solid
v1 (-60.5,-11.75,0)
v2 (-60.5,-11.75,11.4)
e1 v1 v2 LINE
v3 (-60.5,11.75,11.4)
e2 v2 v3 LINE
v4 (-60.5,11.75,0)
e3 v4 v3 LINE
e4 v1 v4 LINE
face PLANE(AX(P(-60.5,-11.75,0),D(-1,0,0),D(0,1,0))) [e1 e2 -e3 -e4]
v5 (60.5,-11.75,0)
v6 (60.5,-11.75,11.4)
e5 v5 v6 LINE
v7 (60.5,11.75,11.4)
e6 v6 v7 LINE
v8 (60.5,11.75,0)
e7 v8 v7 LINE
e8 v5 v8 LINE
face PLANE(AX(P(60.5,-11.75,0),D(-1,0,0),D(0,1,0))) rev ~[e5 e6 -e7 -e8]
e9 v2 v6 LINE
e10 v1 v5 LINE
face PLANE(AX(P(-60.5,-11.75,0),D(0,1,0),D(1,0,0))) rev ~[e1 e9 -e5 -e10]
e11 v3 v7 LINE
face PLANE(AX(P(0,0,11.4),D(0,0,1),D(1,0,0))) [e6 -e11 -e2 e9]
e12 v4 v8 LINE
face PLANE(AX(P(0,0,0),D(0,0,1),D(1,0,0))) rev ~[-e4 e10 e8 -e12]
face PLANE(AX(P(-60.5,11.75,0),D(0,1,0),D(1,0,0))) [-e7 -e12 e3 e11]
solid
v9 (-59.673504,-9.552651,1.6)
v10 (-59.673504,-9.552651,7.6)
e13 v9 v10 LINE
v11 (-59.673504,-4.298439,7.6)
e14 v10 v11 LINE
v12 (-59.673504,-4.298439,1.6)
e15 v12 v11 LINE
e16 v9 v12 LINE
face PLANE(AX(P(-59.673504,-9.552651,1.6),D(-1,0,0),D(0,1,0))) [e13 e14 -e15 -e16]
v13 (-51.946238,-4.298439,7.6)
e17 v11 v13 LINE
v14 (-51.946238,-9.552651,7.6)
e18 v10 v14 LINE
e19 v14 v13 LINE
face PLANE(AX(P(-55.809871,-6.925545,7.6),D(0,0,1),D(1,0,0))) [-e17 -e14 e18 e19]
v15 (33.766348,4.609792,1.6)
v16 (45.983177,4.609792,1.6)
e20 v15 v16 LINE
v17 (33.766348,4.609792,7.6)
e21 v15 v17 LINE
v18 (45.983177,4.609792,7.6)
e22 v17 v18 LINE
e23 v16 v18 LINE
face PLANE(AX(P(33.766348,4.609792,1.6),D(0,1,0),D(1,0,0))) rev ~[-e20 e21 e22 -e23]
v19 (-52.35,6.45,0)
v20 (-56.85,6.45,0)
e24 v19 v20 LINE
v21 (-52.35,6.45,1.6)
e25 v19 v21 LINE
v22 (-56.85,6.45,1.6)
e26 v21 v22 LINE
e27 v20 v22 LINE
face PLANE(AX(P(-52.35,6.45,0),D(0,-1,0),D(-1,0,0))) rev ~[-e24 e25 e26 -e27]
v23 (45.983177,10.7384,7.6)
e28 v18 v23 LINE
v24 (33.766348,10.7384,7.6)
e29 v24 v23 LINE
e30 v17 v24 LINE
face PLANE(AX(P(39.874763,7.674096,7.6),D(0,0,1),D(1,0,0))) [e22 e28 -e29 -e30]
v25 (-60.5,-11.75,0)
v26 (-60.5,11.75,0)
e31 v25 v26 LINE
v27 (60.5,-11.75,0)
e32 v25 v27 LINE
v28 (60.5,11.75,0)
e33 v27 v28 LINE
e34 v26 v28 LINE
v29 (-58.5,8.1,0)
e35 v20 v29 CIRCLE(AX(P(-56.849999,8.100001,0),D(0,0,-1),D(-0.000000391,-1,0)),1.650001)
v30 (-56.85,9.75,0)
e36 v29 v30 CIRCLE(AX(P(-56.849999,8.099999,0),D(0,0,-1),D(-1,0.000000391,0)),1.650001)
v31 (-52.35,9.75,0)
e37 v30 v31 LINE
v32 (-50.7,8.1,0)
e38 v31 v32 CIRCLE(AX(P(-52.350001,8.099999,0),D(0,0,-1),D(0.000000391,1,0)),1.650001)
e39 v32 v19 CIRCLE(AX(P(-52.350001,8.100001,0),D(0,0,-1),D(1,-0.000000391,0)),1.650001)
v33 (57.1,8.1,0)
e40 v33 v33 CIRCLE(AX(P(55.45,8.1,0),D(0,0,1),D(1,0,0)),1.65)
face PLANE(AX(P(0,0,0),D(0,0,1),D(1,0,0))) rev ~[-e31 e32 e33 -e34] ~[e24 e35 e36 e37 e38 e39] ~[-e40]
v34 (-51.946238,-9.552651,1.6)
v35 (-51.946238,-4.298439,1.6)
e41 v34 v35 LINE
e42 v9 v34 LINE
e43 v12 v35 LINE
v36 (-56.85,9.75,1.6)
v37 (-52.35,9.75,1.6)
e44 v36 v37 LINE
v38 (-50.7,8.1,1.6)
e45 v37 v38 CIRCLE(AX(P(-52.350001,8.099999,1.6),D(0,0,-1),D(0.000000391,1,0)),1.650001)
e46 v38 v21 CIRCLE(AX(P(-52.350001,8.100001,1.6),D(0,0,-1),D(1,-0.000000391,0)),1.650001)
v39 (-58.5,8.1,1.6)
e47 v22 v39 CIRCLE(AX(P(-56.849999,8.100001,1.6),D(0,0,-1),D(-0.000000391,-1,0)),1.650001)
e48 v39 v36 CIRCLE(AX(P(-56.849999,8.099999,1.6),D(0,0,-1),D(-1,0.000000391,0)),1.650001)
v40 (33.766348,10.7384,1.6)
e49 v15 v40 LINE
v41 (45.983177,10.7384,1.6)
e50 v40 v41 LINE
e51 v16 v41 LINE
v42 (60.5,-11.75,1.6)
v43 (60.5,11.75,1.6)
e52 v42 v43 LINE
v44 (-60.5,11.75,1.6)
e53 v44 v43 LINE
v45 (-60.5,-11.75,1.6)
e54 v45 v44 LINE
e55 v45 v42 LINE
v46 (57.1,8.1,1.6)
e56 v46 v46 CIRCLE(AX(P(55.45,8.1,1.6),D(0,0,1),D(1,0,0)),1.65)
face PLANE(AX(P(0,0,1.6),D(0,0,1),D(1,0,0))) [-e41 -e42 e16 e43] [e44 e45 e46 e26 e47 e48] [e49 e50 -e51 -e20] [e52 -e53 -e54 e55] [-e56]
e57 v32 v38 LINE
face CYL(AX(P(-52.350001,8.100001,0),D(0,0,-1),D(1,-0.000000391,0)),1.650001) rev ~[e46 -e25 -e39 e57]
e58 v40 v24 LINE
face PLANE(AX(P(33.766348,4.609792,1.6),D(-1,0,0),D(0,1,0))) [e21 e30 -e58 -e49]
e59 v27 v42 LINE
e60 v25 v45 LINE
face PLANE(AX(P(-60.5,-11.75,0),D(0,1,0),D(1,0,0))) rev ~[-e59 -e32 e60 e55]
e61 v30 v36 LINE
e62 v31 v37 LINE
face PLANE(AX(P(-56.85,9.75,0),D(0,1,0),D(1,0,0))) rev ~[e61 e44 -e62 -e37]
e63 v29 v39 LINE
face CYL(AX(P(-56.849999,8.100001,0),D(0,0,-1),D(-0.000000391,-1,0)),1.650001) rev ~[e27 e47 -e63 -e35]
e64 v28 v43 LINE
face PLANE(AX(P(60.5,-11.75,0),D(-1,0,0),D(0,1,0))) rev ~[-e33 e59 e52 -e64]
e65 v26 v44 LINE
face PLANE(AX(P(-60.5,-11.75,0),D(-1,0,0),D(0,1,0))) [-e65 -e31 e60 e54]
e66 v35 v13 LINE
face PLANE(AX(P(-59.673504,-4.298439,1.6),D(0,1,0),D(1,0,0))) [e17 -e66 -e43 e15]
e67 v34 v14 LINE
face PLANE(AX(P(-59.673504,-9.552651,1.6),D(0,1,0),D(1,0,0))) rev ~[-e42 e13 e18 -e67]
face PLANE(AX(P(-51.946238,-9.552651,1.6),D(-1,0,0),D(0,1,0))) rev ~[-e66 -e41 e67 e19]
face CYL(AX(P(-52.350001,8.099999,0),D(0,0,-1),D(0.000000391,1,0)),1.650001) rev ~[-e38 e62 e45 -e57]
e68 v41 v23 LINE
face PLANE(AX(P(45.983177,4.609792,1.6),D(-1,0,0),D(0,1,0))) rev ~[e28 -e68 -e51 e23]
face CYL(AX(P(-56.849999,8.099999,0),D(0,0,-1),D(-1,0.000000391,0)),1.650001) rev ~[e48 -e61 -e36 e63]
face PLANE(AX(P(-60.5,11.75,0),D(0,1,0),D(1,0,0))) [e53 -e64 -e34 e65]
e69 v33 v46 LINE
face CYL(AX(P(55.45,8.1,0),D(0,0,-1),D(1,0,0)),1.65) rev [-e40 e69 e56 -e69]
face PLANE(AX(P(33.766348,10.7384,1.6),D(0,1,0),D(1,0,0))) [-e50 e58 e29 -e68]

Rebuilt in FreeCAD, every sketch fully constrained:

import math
import FreeCAD as App
import Part
import Sketcher
Q = App.Units.Quantity


def add_polygon(sketch, points):
    """Adds a closed chain of lines whose ends are joined by coincident constraints."""
    first, n = sketch.GeometryCount, len(points)
    for a, b in zip(points, points[1:] + points[:1]):
        sketch.addGeometry(Part.LineSegment(App.Vector(*a, 0), App.Vector(*b, 0)), False)
    for i in range(n):
        sketch.addConstraint(Sketcher.Constraint("Coincident", first + i, 2, first + (i + 1) % n, 1))

doc = App.newDocument("Part")
params = doc.addObject("Spreadsheet::Sheet", "Params")
for row, (alias, value) in enumerate([
    ("sketch1_diameter", "3.3 mm"),
    ("sketch1_width", "121 mm"),
    ("sketch1_width2", "4.5 mm"),
    ("sketch1_height", "23.5 mm"),
    ("pad1_length", "1.6 mm"),
    ("pad2_length", "6 mm"),
    ("sketch3_width", "121 mm"),
    ("sketch3_height", "23.5 mm"),
    ("pad3_length", "11.4 mm"),
], start=1):
    params.set(f"A{row}", alias)
    params.set(f"B{row}", "=" + value)
    params.setAlias(f"B{row}", alias)

body = doc.addObject("PartDesign::Body", "Body")

# Sketch on XY plane
sketch1 = body.newObject("Sketcher::SketchObject", "Sketch")
sketch1.AttachmentSupport = (doc.getObject("XY_Plane"), [""])
sketch1.MapMode = "FlatFace"
add_polygon(sketch1, [(-60.5, 11.75), (-60.5, -11.75), (60.5, -11.75), (60.5, 11.75)])  # lines 0-3
sketch1.addGeometry(Part.ArcOfCircle(Part.Circle(App.Vector(-56.849999, 8.100001, 0), App.Vector(0, 0, 1), 1.650001), math.radians(-179.999978), math.radians(-90.000022)), False)  # 4
sketch1.addGeometry(Part.ArcOfCircle(Part.Circle(App.Vector(-56.849999, 8.099999, 0), App.Vector(0, 0, 1), 1.650001), math.radians(90.000022), math.radians(179.999978)), False)  # 5
sketch1.addGeometry(Part.LineSegment(App.Vector(-56.85, 9.75, 0), App.Vector(-52.35, 9.75, 0)), False)  # 6
sketch1.addGeometry(Part.ArcOfCircle(Part.Circle(App.Vector(-52.350001, 8.099999, 0), App.Vector(0, 0, 1), 1.650001), math.radians(0.000022), math.radians(89.999978)), False)  # 7
sketch1.addGeometry(Part.ArcOfCircle(Part.Circle(App.Vector(-52.350001, 8.100001, 0), App.Vector(0, 0, 1), 1.650001), math.radians(-89.999978), math.radians(-0.000022)), False)  # 8
sketch1.addGeometry(Part.LineSegment(App.Vector(-52.35, 6.45, 0), App.Vector(-56.85, 6.45, 0)), False)  # 9
sketch1.addGeometry(Part.Circle(App.Vector(55.45, 8.1, 0), App.Vector(0, 0, 1), 1.65), False)  # 10
sketch1.addConstraint([
    Sketcher.Constraint("Tangent", 4, 1, 5, 2),
    Sketcher.Constraint("Tangent", 5, 1, 6, 1),
    Sketcher.Constraint("Tangent", 6, 2, 7, 2),
    Sketcher.Constraint("Tangent", 7, 1, 8, 2),
    Sketcher.Constraint("Tangent", 8, 1, 9, 1),
    Sketcher.Constraint("Tangent", 9, 2, 4, 2),
    Sketcher.Constraint("Vertical", 0),
    Sketcher.Constraint("Horizontal", 1),
    Sketcher.Constraint("Vertical", 2),
    Sketcher.Constraint("Horizontal", 3),
    Sketcher.Constraint("Horizontal", 6),
    Sketcher.Constraint("Horizontal", 9),
    Sketcher.Constraint("Equal", 4, 5),
    Sketcher.Constraint("Equal", 5, 7),
    Sketcher.Constraint("Equal", 8, 10),
    Sketcher.Constraint("Symmetric", 0, 2, 2, 2, -1, 1),
    Sketcher.Constraint("Horizontal", 8, 3, 10, 3),
    Sketcher.Constraint("Horizontal", 10, 3, 4, 1),
    Sketcher.Constraint("Horizontal", 4, 1, 7, 1),
    Sketcher.Constraint("Diameter", 10, Q("3.3 mm")),
    Sketcher.Constraint("DistanceX", 1, 1, 1, 2, Q("121 mm")),
    Sketcher.Constraint("DistanceX", 6, 1, 6, 2, Q("4.5 mm")),
    Sketcher.Constraint("DistanceY", 0, 2, 0, 1, Q("23.5 mm")),
    Sketcher.Constraint("DistanceX", 3, 2, 4, 1, Q("2 mm")),
    Sketcher.Constraint("DistanceY", 5, 1, 3, 2, Q("2 mm")),
    Sketcher.Constraint("DistanceX", 7, 3, 10, 3, Q("107.800001 mm")),
])
sketch1.setExpression("Constraints[23]", "Params.sketch1_diameter")
sketch1.setExpression("Constraints[24]", "Params.sketch1_width")
sketch1.setExpression("Constraints[25]", "Params.sketch1_width2")
sketch1.setExpression("Constraints[26]", "Params.sketch1_height")
pad1 = body.newObject("PartDesign::Pad", "Pad")
pad1.Profile = sketch1
pad1.setExpression("Length", "Params.pad1_length")

# Sketch on XY plane
sketch2 = body.newObject("Sketcher::SketchObject", "Sketch001")
sketch2.AttachmentSupport = (doc.getObject("XY_Plane"), [""])
sketch2.MapMode = "FlatFace"
sketch2.AttachmentOffset = App.Placement(App.Vector(0, 0, 1.6), App.Rotation())
add_polygon(sketch2, [(33.766348, 10.7384), (33.766348, 4.609792), (45.983177, 4.609792), (45.983177, 10.7384)])  # lines 0-3
add_polygon(sketch2, [(-59.673504, -4.298439), (-59.673504, -9.552651), (-51.946238, -9.552651), (-51.946238, -4.298439)])  # lines 4-7
sketch2.addConstraint([
    Sketcher.Constraint("Vertical", 0),
    Sketcher.Constraint("Horizontal", 1),
    Sketcher.Constraint("Vertical", 2),
    Sketcher.Constraint("Horizontal", 3),
    Sketcher.Constraint("Vertical", 4),
    Sketcher.Constraint("Horizontal", 5),
    Sketcher.Constraint("Vertical", 6),
    Sketcher.Constraint("Horizontal", 7),
    Sketcher.Constraint("DistanceX", 1, 1, 1, 2, Q("12.216829 mm")),
    Sketcher.Constraint("DistanceY", 0, 2, 0, 1, Q("6.128608 mm")),
    Sketcher.Constraint("DistanceY", 4, 2, 4, 1, Q("5.254211 mm")),
    Sketcher.Constraint("DistanceY", -1, 1, 2, 2, Q("10.7384 mm")),
    Sketcher.Constraint("DistanceX", 5, 1, 5, 2, Q("7.727265 mm")),
    Sketcher.Constraint("DistanceX", -1, 1, 0, 2, Q("33.766348 mm")),
    Sketcher.Constraint("DistanceY", 4, 2, -1, 1, Q("9.552651 mm")),
    Sketcher.Constraint("DistanceX", 5, 2, -1, 1, Q("51.946238 mm")),
])
pad2 = body.newObject("PartDesign::Pad", "Pad001")
pad2.Profile = sketch2
pad2.setExpression("Length", "Params.pad2_length")
body2 = doc.addObject("PartDesign::Body", "Body001")

# Sketch on XY plane
sketch3 = body2.newObject("Sketcher::SketchObject", "Sketch002")
sketch3.AttachmentSupport = (doc.getObject("XY_Plane001"), [""])
sketch3.MapMode = "FlatFace"
add_polygon(sketch3, [(-60.5, 11.75), (-60.5, -11.75), (60.5, -11.75), (60.5, 11.75)])  # lines 0-3
sketch3.addConstraint([
    Sketcher.Constraint("Vertical", 0),
    Sketcher.Constraint("Horizontal", 1),
    Sketcher.Constraint("Vertical", 2),
    Sketcher.Constraint("Horizontal", 3),
    Sketcher.Constraint("Symmetric", 0, 2, 2, 2, -1, 1),
    Sketcher.Constraint("DistanceX", 1, 1, 1, 2, Q("121 mm")),
    Sketcher.Constraint("DistanceY", 0, 2, 0, 1, Q("23.5 mm")),
])
sketch3.setExpression("Constraints[9]", "Params.sketch3_width")
sketch3.setExpression("Constraints[10]", "Params.sketch3_height")
pad3 = body2.newObject("PartDesign::Pad", "Pad002")
pad3.Profile = sketch3
pad3.setExpression("Length", "Params.pad3_length")

doc.recompute()
